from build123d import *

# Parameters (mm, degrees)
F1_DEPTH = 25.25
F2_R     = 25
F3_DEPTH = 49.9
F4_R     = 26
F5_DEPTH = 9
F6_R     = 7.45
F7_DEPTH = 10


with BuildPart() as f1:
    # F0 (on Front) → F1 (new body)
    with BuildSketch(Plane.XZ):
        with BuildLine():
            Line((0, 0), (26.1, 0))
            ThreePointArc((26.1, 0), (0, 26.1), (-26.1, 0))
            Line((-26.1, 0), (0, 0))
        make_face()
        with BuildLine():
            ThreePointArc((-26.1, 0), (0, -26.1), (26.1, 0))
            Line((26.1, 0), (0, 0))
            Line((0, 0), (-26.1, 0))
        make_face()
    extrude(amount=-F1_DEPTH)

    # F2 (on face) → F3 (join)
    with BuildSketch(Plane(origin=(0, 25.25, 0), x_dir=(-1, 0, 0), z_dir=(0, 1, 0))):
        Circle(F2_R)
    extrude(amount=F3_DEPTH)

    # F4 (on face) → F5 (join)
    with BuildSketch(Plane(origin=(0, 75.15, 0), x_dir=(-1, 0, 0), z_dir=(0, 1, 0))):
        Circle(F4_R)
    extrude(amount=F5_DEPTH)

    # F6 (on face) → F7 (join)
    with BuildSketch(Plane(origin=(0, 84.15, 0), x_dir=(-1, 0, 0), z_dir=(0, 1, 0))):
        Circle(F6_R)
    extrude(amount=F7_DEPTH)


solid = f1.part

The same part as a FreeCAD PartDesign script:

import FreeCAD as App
import Part
import Sketcher

V = App.Vector

doc = App.newDocument("Part")
params = doc.addObject("Spreadsheet::Sheet", "Params")
for row, (alias, value) in enumerate([
    ("sketch1_diameter", "52.2 mm"),
    ("pad1_length", "25.25 mm"),
    ("sketch2_diameter", "50 mm"),
    ("pad2_length", "49.9 mm"),
    ("sketch3_diameter", "52 mm"),
    ("pad3_length", "9 mm"),
    ("sketch4_diameter", "14.9 mm"),
    ("pad4_length", "10 mm"),
], start=1):
    params.set(f"A{row}", alias)
    params.set(f"B{row}", "=" + value)
    params.setAlias(f"B{row}", alias)

body = doc.addObject("PartDesign::Body", "Body")

sketch1 = doc.addObject("Sketcher::SketchObject", "Sketch")
body.addObject(sketch1)
sketch1.AttachmentSupport = (doc.XZ_Plane, [""])
sketch1.MapMode = "FlatFace"
sketch1.addGeometry(Part.Circle(V(0, 0, 0), V(0, 0, 1), 26), False)
sketch1.addConstraint([
    Sketcher.Constraint("Coincident", 0, 3, -1, 1),
    Sketcher.Constraint("Diameter", 0, 52.2),
])
sketch1.setExpression("Constraints[1]", "Params.sketch1_diameter")
pad1 = doc.addObject("PartDesign::Pad", "Pad")
body.addObject(pad1)
pad1.Profile = sketch1
pad1.setExpression("Length", "Params.pad1_length")
pad1.Reversed = True

sketch2 = doc.addObject("Sketcher::SketchObject", "Sketch001")
body.addObject(sketch2)
sketch2.AttachmentSupport = (doc.XZ_Plane, [""])
sketch2.MapMode = "FlatFace"
sketch2.AttachmentOffset = App.Placement(V(0, 0, -25.25), App.Rotation())
sketch2.addGeometry(Part.Circle(V(0, 0, 0), V(0, 0, 1), 25), False)
sketch2.addConstraint([
    Sketcher.Constraint("Coincident", 0, 3, -1, 1),
    Sketcher.Constraint("Diameter", 0, 50.0),
])
sketch2.setExpression("Constraints[1]", "Params.sketch2_diameter")
pad2 = doc.addObject("PartDesign::Pad", "Pad001")
body.addObject(pad2)
pad2.Profile = sketch2
pad2.setExpression("Length", "Params.pad2_length")
pad2.Reversed = True

sketch3 = doc.addObject("Sketcher::SketchObject", "Sketch002")
body.addObject(sketch3)
sketch3.AttachmentSupport = (doc.XZ_Plane, [""])
sketch3.MapMode = "FlatFace"
sketch3.AttachmentOffset = App.Placement(V(0, 0, -75.15), App.Rotation())
sketch3.addGeometry(Part.Circle(V(0, 0, 0), V(0, 0, 1), 26), False)
sketch3.addConstraint([
    Sketcher.Constraint("Coincident", 0, 3, -1, 1),
    Sketcher.Constraint("Diameter", 0, 52.0),
])
sketch3.setExpression("Constraints[1]", "Params.sketch3_diameter")
pad3 = doc.addObject("PartDesign::Pad", "Pad002")
body.addObject(pad3)
pad3.Profile = sketch3
pad3.setExpression("Length", "Params.pad3_length")
pad3.Reversed = True

sketch4 = doc.addObject("Sketcher::SketchObject", "Sketch003")
body.addObject(sketch4)
sketch4.AttachmentSupport = (doc.XZ_Plane, [""])
sketch4.MapMode = "FlatFace"
sketch4.AttachmentOffset = App.Placement(V(0, 0, -84.15), App.Rotation())
sketch4.addGeometry(Part.Circle(V(0, 0, 0), V(0, 0, 1), 7), False)
sketch4.addConstraint([
    Sketcher.Constraint("Coincident", 0, 3, -1, 1),
    Sketcher.Constraint("Diameter", 0, 14.9),
])
sketch4.setExpression("Constraints[1]", "Params.sketch4_diameter")
pad4 = doc.addObject("PartDesign::Pad", "Pad003")
body.addObject(pad4)
pad4.Profile = sketch4
pad4.setExpression("Length", "Params.pad4_length")
pad4.Reversed = True

doc.recompute()
